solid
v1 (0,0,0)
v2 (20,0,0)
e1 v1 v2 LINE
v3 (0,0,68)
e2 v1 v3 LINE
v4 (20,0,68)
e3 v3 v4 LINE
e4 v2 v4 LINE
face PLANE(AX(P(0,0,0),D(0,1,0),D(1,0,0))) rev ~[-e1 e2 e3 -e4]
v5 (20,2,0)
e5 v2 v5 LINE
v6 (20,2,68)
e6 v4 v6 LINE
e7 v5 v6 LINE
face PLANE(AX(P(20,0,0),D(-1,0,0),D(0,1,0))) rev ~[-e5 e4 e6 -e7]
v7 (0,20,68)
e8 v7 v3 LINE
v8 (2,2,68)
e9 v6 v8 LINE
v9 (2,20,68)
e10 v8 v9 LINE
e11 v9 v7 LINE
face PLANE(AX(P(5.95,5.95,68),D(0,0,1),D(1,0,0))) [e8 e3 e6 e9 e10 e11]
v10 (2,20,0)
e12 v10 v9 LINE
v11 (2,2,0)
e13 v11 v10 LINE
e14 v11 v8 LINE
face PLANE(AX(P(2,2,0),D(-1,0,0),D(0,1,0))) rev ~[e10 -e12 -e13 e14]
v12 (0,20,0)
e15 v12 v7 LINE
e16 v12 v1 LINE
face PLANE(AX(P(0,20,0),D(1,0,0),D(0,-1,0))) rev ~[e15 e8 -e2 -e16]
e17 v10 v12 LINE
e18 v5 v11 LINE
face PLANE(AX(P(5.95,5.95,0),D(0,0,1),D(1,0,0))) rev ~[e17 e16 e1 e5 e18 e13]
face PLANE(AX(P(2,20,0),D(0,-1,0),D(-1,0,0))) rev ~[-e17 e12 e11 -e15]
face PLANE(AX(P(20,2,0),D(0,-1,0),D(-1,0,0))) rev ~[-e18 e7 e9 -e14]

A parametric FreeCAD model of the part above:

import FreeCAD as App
import Part
import Sketcher
Q = App.Units.Quantity

doc = App.newDocument("Part")
params = doc.addObject("Spreadsheet::Sheet", "Params")
for row, (alias, value) in enumerate([
    ("sketch1_width", "20 mm"),
    ("sketch1_width2", "18 mm"),
    ("pad1_length", "68 mm"),
], start=1):
    params.set(f"A{row}", alias)
    params.set(f"B{row}", "=" + value)
    params.setAlias(f"B{row}", alias)

body = doc.addObject("PartDesign::Body", "Body")

# Sketch on XY plane
sketch1 = doc.addObject("Sketcher::SketchObject", "Sketch")
body.addObject(sketch1)
sketch1.AttachmentSupport = (doc.XY_Plane, [""])
sketch1.MapMode = "FlatFace"
sketch1.addGeometry([
    Part.LineSegment(App.Vector(0, 0, 0), App.Vector(20, 0, 0)),  # 0
    Part.LineSegment(App.Vector(20, 0, 0), App.Vector(20, 2, 0)),  # 1
    Part.LineSegment(App.Vector(20, 2, 0), App.Vector(2, 2, 0)),  # 2
    Part.LineSegment(App.Vector(2, 2, 0), App.Vector(2, 20, 0)),  # 3
    Part.LineSegment(App.Vector(2, 20, 0), App.Vector(0, 20, 0)),  # 4
    Part.LineSegment(App.Vector(0, 20, 0), App.Vector(0, 0, 0)),  # 5
], False)
sketch1.addConstraint([
    Sketcher.Constraint("Coincident", 0, 2, 1, 1),
    Sketcher.Constraint("Coincident", 1, 2, 2, 1),
    Sketcher.Constraint("Coincident", 2, 2, 3, 1),
    Sketcher.Constraint("Coincident", 3, 2, 4, 1),
    Sketcher.Constraint("Coincident", 4, 2, 5, 1),
    Sketcher.Constraint("Coincident", 5, 2, 0, 1),
    Sketcher.Constraint("Horizontal", 0),
    Sketcher.Constraint("Vertical", 1),
    Sketcher.Constraint("Horizontal", 2),
    Sketcher.Constraint("Vertical", 3),
    Sketcher.Constraint("Horizontal", 4),
    Sketcher.Constraint("Vertical", 5),
    Sketcher.Constraint("Coincident", 5, 2, -1, 1),
    Sketcher.Constraint("Equal", 4, 1),
    Sketcher.Constraint("Equal", 2, 3),
    Sketcher.Constraint("DistanceX", 0, 1, 0, 2, Q("20 mm")),
    Sketcher.Constraint("DistanceX", 2, 2, 2, 1, Q("18 mm")),
])
sketch1.setExpression("Constraints[15]", "Params.sketch1_width")
sketch1.setExpression("Constraints[16]", "Params.sketch1_width2")
pad1 = doc.addObject("PartDesign::Pad", "Pad")
body.addObject(pad1)
pad1.Profile = sketch1
pad1.setExpression("Length", "Params.pad1_length")

doc.recompute()
